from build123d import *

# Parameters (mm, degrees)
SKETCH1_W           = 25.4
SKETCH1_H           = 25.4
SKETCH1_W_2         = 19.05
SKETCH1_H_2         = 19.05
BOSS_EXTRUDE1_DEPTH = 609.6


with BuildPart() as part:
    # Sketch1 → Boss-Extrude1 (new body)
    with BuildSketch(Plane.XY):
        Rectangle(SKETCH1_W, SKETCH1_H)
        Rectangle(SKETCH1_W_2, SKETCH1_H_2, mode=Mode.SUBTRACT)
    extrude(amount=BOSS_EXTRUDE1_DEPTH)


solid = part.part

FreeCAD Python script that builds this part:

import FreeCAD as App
import Part
import Sketcher

V = App.Vector
Q = App.Units.Quantity

doc = App.newDocument("Part")
params = doc.addObject("Spreadsheet::Sheet", "Params")
for row, (alias, value) in enumerate([
    ("sketch1_width", "1 in"),
    ("sketch1_width2", "0.75 in"),
    ("pad1_length", "24 in"),
], start=1):
    params.set(f"A{row}", alias)
    params.set(f"B{row}", "=" + value)
    params.setAlias(f"B{row}", alias)

body = doc.addObject("PartDesign::Body", "Body")

# Sketch on XY plane
sketch1 = body.newObject("Sketcher::SketchObject", "Sketch")
sketch1.AttachmentSupport = (doc.getObject("XY_Plane"), [""])
sketch1.MapMode = "FlatFace"
sketch1.addGeometry([
    Part.LineSegment(V(-13, 13, 0), V(-13, -13, 0)),  # 0
    Part.LineSegment(V(-13, -13, 0), V(13, -13, 0)),  # 1
    Part.LineSegment(V(13, -13, 0), V(13, 13, 0)),  # 2
    Part.LineSegment(V(13, 13, 0), V(-13, 13, 0)),  # 3
    Part.LineSegment(V(10, -10, 0), V(-10, -10, 0)),  # 4
    Part.LineSegment(V(-10, -10, 0), V(-10, 10, 0)),  # 5
    Part.LineSegment(V(-10, 10, 0), V(10, 10, 0)),  # 6
    Part.LineSegment(V(10, 10, 0), V(10, -10, 0)),  # 7
], False)
sketch1.addConstraint([
    Sketcher.Constraint("Coincident", 0, 2, 1, 1),
    Sketcher.Constraint("Coincident", 1, 2, 2, 1),
    Sketcher.Constraint("Coincident", 2, 2, 3, 1),
    Sketcher.Constraint("Coincident", 3, 2, 0, 1),
    Sketcher.Constraint("Coincident", 4, 2, 5, 1),
    Sketcher.Constraint("Coincident", 5, 2, 6, 1),
    Sketcher.Constraint("Coincident", 6, 2, 7, 1),
    Sketcher.Constraint("Coincident", 7, 2, 4, 1),
    Sketcher.Constraint("Vertical", 0),
    Sketcher.Constraint("Horizontal", 1),
    Sketcher.Constraint("Vertical", 2),
    Sketcher.Constraint("Horizontal", 3),
    Sketcher.Constraint("Horizontal", 4),
    Sketcher.Constraint("Vertical", 5),
    Sketcher.Constraint("Horizontal", 6),
    Sketcher.Constraint("Vertical", 7),
    Sketcher.Constraint("Symmetric", 0, 2, 2, 2, -1, 1),
    Sketcher.Constraint("Symmetric", 4, 2, 6, 2, -1, 1),
    Sketcher.Constraint("Equal", 3, 0),
    Sketcher.Constraint("Equal", 6, 5),
    Sketcher.Constraint("DistanceX", 1, 1, 1, 2, Q("1 in")),
    Sketcher.Constraint("DistanceX", 4, 2, 4, 1, Q("0.75 in")),
])
sketch1.setExpression("Constraints[20]", "Params.sketch1_width")
sketch1.setExpression("Constraints[21]", "Params.sketch1_width2")
pad1 = body.newObject("PartDesign::Pad", "Pad")
pad1.Profile = sketch1
pad1.setExpression("Length", "Params.pad1_length")

doc.recompute()
